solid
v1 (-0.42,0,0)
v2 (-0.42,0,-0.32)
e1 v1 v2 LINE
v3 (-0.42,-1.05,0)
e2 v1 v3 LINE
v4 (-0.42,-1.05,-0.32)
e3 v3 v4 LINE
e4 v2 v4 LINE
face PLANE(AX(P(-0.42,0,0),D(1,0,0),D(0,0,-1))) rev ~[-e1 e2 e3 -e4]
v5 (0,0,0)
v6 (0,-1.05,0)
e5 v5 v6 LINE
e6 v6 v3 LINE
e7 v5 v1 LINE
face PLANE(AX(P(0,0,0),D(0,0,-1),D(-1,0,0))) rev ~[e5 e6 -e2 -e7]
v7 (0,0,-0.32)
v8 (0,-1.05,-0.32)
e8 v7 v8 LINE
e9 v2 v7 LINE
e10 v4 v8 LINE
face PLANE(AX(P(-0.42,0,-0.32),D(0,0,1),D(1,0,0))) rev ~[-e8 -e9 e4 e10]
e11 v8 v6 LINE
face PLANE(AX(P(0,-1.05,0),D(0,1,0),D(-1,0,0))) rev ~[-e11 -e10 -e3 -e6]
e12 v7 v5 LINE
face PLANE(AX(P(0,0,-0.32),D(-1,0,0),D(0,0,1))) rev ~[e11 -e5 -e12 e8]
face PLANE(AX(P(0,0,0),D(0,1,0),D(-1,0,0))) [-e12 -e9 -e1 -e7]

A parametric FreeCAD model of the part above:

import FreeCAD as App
import Part
import Sketcher
Q = App.Units.Quantity


def add_polygon(sketch, points):
    """Adds a closed chain of lines whose ends are joined by coincident constraints."""
    first, n = sketch.GeometryCount, len(points)
    for a, b in zip(points, points[1:] + points[:1]):
        sketch.addGeometry(Part.LineSegment(App.Vector(*a, 0), App.Vector(*b, 0)), False)
    for i in range(n):
        sketch.addConstraint(Sketcher.Constraint("Coincident", first + i, 2, first + (i + 1) % n, 1))

doc = App.newDocument("Part")
body = doc.addObject("PartDesign::Body", "Body")

# Sketch on XZ plane
sketch1 = body.newObject("Sketcher::SketchObject", "Sketch")
sketch1.AttachmentSupport = (doc.getObject("XZ_Plane"), [""])
sketch1.MapMode = "FlatFace"
add_polygon(sketch1, [(-0.42, 0), (0, 0), (0, -0.32), (-0.42, -0.32)])  # lines 0-3
sketch1.addConstraint(Sketcher.Constraint("Horizontal", 0))
sketch1.addConstraint(Sketcher.Constraint("Vertical", 1))
sketch1.addConstraint(Sketcher.Constraint("Horizontal", 2))
sketch1.addConstraint(Sketcher.Constraint("Vertical", 3))
sketch1.addConstraint(Sketcher.Constraint("Coincident", 0, 2, -1, 1))
sketch1.addConstraint(Sketcher.Constraint("DistanceX", 0, 1, 0, 2, Q("0.42 mm")))
sketch1.addConstraint(Sketcher.Constraint("DistanceY", 1, 2, 1, 1, Q("0.32 mm")))
pad1 = body.newObject("PartDesign::Pad", "Pad")
pad1.Profile = sketch1
pad1.Length = 1.05

doc.recompute()
